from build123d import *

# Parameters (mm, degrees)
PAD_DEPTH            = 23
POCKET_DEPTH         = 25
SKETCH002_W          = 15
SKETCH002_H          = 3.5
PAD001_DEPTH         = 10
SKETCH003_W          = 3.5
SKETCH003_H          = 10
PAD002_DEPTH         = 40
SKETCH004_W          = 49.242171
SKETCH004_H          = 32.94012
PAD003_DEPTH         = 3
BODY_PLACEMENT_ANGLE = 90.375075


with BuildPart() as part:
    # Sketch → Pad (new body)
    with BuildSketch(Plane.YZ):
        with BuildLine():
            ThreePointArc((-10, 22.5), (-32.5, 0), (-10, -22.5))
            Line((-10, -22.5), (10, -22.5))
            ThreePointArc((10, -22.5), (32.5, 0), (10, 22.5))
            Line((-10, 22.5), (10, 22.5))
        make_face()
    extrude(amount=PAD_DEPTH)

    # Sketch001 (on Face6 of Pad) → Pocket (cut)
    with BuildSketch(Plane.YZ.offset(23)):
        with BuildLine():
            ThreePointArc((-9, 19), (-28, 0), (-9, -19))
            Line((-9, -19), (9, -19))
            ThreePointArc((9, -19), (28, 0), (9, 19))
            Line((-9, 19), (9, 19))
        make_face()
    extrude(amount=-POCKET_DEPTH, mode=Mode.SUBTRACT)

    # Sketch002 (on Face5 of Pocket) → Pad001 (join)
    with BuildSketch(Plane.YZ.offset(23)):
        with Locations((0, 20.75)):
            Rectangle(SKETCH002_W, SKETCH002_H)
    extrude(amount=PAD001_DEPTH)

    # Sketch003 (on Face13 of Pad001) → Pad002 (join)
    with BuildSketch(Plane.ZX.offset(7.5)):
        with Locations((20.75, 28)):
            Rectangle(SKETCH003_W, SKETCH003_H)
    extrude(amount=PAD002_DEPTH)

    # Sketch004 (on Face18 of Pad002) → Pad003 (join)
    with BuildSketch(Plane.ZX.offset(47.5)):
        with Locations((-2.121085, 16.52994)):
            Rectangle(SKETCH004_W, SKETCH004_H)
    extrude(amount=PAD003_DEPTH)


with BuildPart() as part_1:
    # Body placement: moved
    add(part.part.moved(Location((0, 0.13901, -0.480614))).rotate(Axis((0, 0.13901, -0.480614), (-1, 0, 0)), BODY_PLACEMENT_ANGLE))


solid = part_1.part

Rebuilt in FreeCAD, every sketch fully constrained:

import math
import FreeCAD as App
import Part
import Sketcher

V = App.Vector
Q = App.Units.Quantity

doc = App.newDocument("Part")
params = doc.addObject("Spreadsheet::Sheet", "Params")
for row, (alias, value) in enumerate([
    ("sketch1_radius", "22.5 mm"),
    ("sketch1_width", "20 mm"),
    ("pad1_length", "23 mm"),
    ("sketch2_radius", "19 mm"),
    ("sketch2_width", "18 mm"),
    ("pocket1_length", "25 mm"),
    ("sketch3_width", "15 mm"),
    ("sketch3_height", "3.5 mm"),
    ("pad2_length", "10 mm"),
    ("sketch4_width", "10 mm"),
    ("sketch4_height", "3.5 mm"),
    ("pad3_length", "40 mm"),
    ("pad4_length", "3 mm"),
], start=1):
    params.set(f"A{row}", alias)
    params.set(f"B{row}", "=" + value)
    params.setAlias(f"B{row}", alias)

body = doc.addObject("PartDesign::Body", "Body")

# Sketch on YZ plane
sketch1 = doc.addObject("Sketcher::SketchObject", "Sketch")
body.addObject(sketch1)
sketch1.AttachmentSupport = (doc.YZ_Plane, [""])
sketch1.MapMode = "FlatFace"
sketch1.addGeometry(Part.ArcOfCircle(Part.Circle(V(-10, 0, 0), V(0, 0, 1), 22.5), math.radians(90), math.radians(270)), False)
sketch1.addGeometry(Part.LineSegment(V(-10, -22.5, 0), V(10, -22.5, 0)), False)
sketch1.addGeometry(Part.ArcOfCircle(Part.Circle(V(10, 0, 0), V(0, 0, 1), 22.5), math.radians(-90), math.radians(90)), False)
sketch1.addGeometry(Part.LineSegment(V(10, 22.5, 0), V(-10, 22.5, 0)), False)
sketch1.addConstraint(Sketcher.Constraint("Tangent", 0, 2, 1, 1))
sketch1.addConstraint(Sketcher.Constraint("Tangent", 1, 2, 2, 1))
sketch1.addConstraint(Sketcher.Constraint("Tangent", 2, 2, 3, 1))
sketch1.addConstraint(Sketcher.Constraint("Tangent", 3, 2, 0, 1))
sketch1.addConstraint(Sketcher.Constraint("Horizontal", 1))
sketch1.addConstraint(Sketcher.Constraint("Horizontal", 3))
sketch1.addConstraint(Sketcher.Constraint("Symmetric", 0, 3, 2, 3, -1, 1))
sketch1.addConstraint(Sketcher.Constraint("Radius", 0, Q("22.5 mm")))
sketch1.addConstraint(Sketcher.Constraint("DistanceX", 1, 1, 1, 2, Q("20 mm")))
sketch1.setExpression("Constraints[7]", "Params.sketch1_radius")
sketch1.setExpression("Constraints[8]", "Params.sketch1_width")
pad1 = doc.addObject("PartDesign::Pad", "Pad")
body.addObject(pad1)
pad1.Profile = sketch1
pad1.setExpression("Length", "Params.pad1_length")

# Sketch on YZ plane
sketch2 = doc.addObject("Sketcher::SketchObject", "Sketch001")
body.addObject(sketch2)
sketch2.AttachmentSupport = (doc.YZ_Plane, [""])
sketch2.MapMode = "FlatFace"
sketch2.AttachmentOffset = App.Placement(V(0, 0, 23), App.Rotation())
sketch2.addGeometry(Part.ArcOfCircle(Part.Circle(V(-9, 0, 0), V(0, 0, 1), 19), math.radians(90), math.radians(270)), False)
sketch2.addGeometry(Part.LineSegment(V(-9, -19, 0), V(9, -19, 0)), False)
sketch2.addGeometry(Part.ArcOfCircle(Part.Circle(V(9, 0, 0), V(0, 0, 1), 19), math.radians(-90), math.radians(90)), False)
sketch2.addGeometry(Part.LineSegment(V(9, 19, 0), V(-9, 19, 0)), False)
sketch2.addConstraint(Sketcher.Constraint("Tangent", 0, 2, 1, 1))
sketch2.addConstraint(Sketcher.Constraint("Tangent", 1, 2, 2, 1))
sketch2.addConstraint(Sketcher.Constraint("Tangent", 2, 2, 3, 1))
sketch2.addConstraint(Sketcher.Constraint("Tangent", 3, 2, 0, 1))
sketch2.addConstraint(Sketcher.Constraint("Horizontal", 1))
sketch2.addConstraint(Sketcher.Constraint("Horizontal", 3))
sketch2.addConstraint(Sketcher.Constraint("Symmetric", 0, 3, 2, 3, -1, 1))
sketch2.addConstraint(Sketcher.Constraint("Radius", 0, Q("19 mm")))
sketch2.addConstraint(Sketcher.Constraint("DistanceX", 1, 1, 1, 2, Q("18 mm")))
sketch2.setExpression("Constraints[7]", "Params.sketch2_radius")
sketch2.setExpression("Constraints[8]", "Params.sketch2_width")
pocket1 = doc.addObject("PartDesign::Pocket", "Pocket")
body.addObject(pocket1)
pocket1.Profile = sketch2
pocket1.setExpression("Length", "Params.pocket1_length")

# Sketch on YZ plane
sketch3 = doc.addObject("Sketcher::SketchObject", "Sketch002")
body.addObject(sketch3)
sketch3.AttachmentSupport = (doc.YZ_Plane, [""])
sketch3.MapMode = "FlatFace"
sketch3.AttachmentOffset = App.Placement(V(0, 0, 23), App.Rotation())
sketch3.addGeometry(Part.LineSegment(V(-7.5, 22.5, 0), V(-7.5, 19, 0)), False)
sketch3.addGeometry(Part.LineSegment(V(-7.5, 19, 0), V(7.5, 19, 0)), False)
sketch3.addGeometry(Part.LineSegment(V(7.5, 19, 0), V(7.5, 22.5, 0)), False)
sketch3.addGeometry(Part.LineSegment(V(7.5, 22.5, 0), V(-7.5, 22.5, 0)), False)
sketch3.addConstraint(Sketcher.Constraint("Coincident", 0, 2, 1, 1))
sketch3.addConstraint(Sketcher.Constraint("Coincident", 1, 2, 2, 1))
sketch3.addConstraint(Sketcher.Constraint("Coincident", 2, 2, 3, 1))
sketch3.addConstraint(Sketcher.Constraint("Coincident", 3, 2, 0, 1))
sketch3.addConstraint(Sketcher.Constraint("Vertical", 0))
sketch3.addConstraint(Sketcher.Constraint("Horizontal", 1))
sketch3.addConstraint(Sketcher.Constraint("Vertical", 2))
sketch3.addConstraint(Sketcher.Constraint("Horizontal", 3))
sketch3.addConstraint(Sketcher.Constraint("DistanceX", 1, 1, 1, 2, Q("15 mm")))
sketch3.addConstraint(Sketcher.Constraint("DistanceY", 0, 2, 0, 1, Q("3.5 mm")))
sketch3.addConstraint(Sketcher.Constraint("DistanceY", -1, 1, 0, 2, Q("19 mm")))
sketch3.addConstraint(Sketcher.Constraint("DistanceX", 0, 2, -1, 1, Q("7.5 mm")))
sketch3.setExpression("Constraints[8]", "Params.sketch3_width")
sketch3.setExpression("Constraints[9]", "Params.sketch3_height")
pad2 = doc.addObject("PartDesign::Pad", "Pad001")
body.addObject(pad2)
pad2.Profile = sketch3
pad2.setExpression("Length", "Params.pad2_length")

# Sketch on XZ plane
sketch4 = doc.addObject("Sketcher::SketchObject", "Sketch003")
body.addObject(sketch4)
sketch4.AttachmentSupport = (doc.XZ_Plane, [""])
sketch4.MapMode = "FlatFace"
sketch4.AttachmentOffset = App.Placement(V(0, 0, -7.5), App.Rotation())
sketch4.addGeometry(Part.LineSegment(V(33, 19, 0), V(23, 19, 0)), False)
sketch4.addGeometry(Part.LineSegment(V(23, 19, 0), V(23, 22.5, 0)), False)
sketch4.addGeometry(Part.LineSegment(V(23, 22.5, 0), V(33, 22.5, 0)), False)
sketch4.addGeometry(Part.LineSegment(V(33, 22.5, 0), V(33, 19, 0)), False)
sketch4.addConstraint(Sketcher.Constraint("Coincident", 0, 2, 1, 1))
sketch4.addConstraint(Sketcher.Constraint("Coincident", 1, 2, 2, 1))
sketch4.addConstraint(Sketcher.Constraint("Coincident", 2, 2, 3, 1))
sketch4.addConstraint(Sketcher.Constraint("Coincident", 3, 2, 0, 1))
sketch4.addConstraint(Sketcher.Constraint("Horizontal", 0))
sketch4.addConstraint(Sketcher.Constraint("Vertical", 1))
sketch4.addConstraint(Sketcher.Constraint("Horizontal", 2))
sketch4.addConstraint(Sketcher.Constraint("Vertical", 3))
sketch4.addConstraint(Sketcher.Constraint("DistanceX", 0, 2, 0, 1, Q("10 mm")))
sketch4.addConstraint(Sketcher.Constraint("DistanceY", 1, 1, 1, 2, Q("3.5 mm")))
sketch4.addConstraint(Sketcher.Constraint("DistanceX", -1, 1, 0, 2, Q("23 mm")))
sketch4.addConstraint(Sketcher.Constraint("DistanceY", -1, 1, 0, 2, Q("19 mm")))
sketch4.setExpression("Constraints[8]", "Params.sketch4_width")
sketch4.setExpression("Constraints[9]", "Params.sketch4_height")
pad3 = doc.addObject("PartDesign::Pad", "Pad002")
body.addObject(pad3)
pad3.Profile = sketch4
pad3.setExpression("Length", "Params.pad3_length")
pad3.Reversed = True

# Sketch on XZ plane
sketch5 = doc.addObject("Sketcher::SketchObject", "Sketch004")
body.addObject(sketch5)
sketch5.AttachmentSupport = (doc.XZ_Plane, [""])
sketch5.MapMode = "FlatFace"
sketch5.AttachmentOffset = App.Placement(V(0, 0, -47.5), App.Rotation())
sketch5.addGeometry(Part.LineSegment(V(33, -26.742171, 0), V(0.05988, -26.742171, 0)), False)
sketch5.addGeometry(Part.LineSegment(V(0.05988, -26.742171, 0), V(0.05988, 22.5, 0)), False)
sketch5.addGeometry(Part.LineSegment(V(0.05988, 22.5, 0), V(33, 22.5, 0)), False)
sketch5.addGeometry(Part.LineSegment(V(33, 22.5, 0), V(33, -26.742171, 0)), False)
sketch5.addConstraint(Sketcher.Constraint("Coincident", 0, 2, 1, 1))
sketch5.addConstraint(Sketcher.Constraint("Coincident", 1, 2, 2, 1))
sketch5.addConstraint(Sketcher.Constraint("Coincident", 2, 2, 3, 1))
sketch5.addConstraint(Sketcher.Constraint("Coincident", 3, 2, 0, 1))
sketch5.addConstraint(Sketcher.Constraint("Horizontal", 0))
sketch5.addConstraint(Sketcher.Constraint("Vertical", 1))
sketch5.addConstraint(Sketcher.Constraint("Horizontal", 2))
sketch5.addConstraint(Sketcher.Constraint("Vertical", 3))
sketch5.addConstraint(Sketcher.Constraint("DistanceX", -1, 1, 2, 2, Q("33 mm")))
sketch5.addConstraint(Sketcher.Constraint("DistanceY", -1, 1, 1, 2, Q("22.5 mm")))
sketch5.addConstraint(Sketcher.Constraint("DistanceX", 0, 2, 0, 1, Q("32.94012 mm")))
sketch5.addConstraint(Sketcher.Constraint("DistanceY", 1, 1, 1, 2, Q("49.242171 mm")))
pad4 = doc.addObject("PartDesign::Pad", "Pad003")
body.addObject(pad4)
pad4.Profile = sketch5
pad4.setExpression("Length", "Params.pad4_length")
pad4.Reversed = True
body2 = doc.addObject("PartDesign::Body", "Body001")
doc.recompute()

body.Placement = App.Placement(V(0, 0.13901, -0.480614), App.Rotation(V(-1, 0, 0), 90.375075))
boolean = doc.addObject("PartDesign::Boolean", "Boolean")
body2.addObject(boolean)
boolean.Type = "Fuse"
boolean.addObjects([body])

doc.recompute()
